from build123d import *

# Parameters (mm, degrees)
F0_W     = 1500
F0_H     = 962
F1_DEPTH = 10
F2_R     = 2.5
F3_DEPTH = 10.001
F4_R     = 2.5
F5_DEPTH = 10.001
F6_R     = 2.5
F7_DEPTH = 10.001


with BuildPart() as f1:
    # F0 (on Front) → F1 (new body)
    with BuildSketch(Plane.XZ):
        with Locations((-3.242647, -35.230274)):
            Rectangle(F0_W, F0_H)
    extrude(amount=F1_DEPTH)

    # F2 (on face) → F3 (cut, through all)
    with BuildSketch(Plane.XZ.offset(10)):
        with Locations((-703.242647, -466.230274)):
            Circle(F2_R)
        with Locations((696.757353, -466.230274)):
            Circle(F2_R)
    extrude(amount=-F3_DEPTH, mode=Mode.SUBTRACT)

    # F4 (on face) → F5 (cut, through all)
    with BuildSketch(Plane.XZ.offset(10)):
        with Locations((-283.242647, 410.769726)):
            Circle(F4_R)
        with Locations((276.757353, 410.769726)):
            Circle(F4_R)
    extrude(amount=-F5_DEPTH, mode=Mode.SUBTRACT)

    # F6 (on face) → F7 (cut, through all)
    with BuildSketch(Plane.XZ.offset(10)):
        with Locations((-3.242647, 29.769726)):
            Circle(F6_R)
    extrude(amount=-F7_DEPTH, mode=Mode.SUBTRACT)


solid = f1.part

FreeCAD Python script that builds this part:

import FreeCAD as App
import Part
import Sketcher
from FreeCAD import Vector


def add_polygon(sketch, points):
    """Adds a closed chain of lines whose ends are joined by coincident constraints."""
    first, n = sketch.GeometryCount, len(points)
    for a, b in zip(points, points[1:] + points[:1]):
        sketch.addGeometry(Part.LineSegment(App.Vector(*a, 0), App.Vector(*b, 0)), False)
    for i in range(n):
        sketch.addConstraint(Sketcher.Constraint("Coincident", first + i, 2, first + (i + 1) % n, 1))

doc = App.newDocument("Part")
body = doc.addObject("PartDesign::Body", "Body")

sketch1 = body.newObject("Sketcher::SketchObject", "Sketch")
sketch1.AttachmentSupport = (doc.getObject("XZ_Plane"), [""])
sketch1.MapMode = "FlatFace"
add_polygon(sketch1, [(-753, 446), (-753, -516), (747, -516), (747, 446)])
sketch1.addConstraint(Sketcher.Constraint("Vertical", 0))
sketch1.addConstraint(Sketcher.Constraint("Horizontal", 1))
sketch1.addConstraint(Sketcher.Constraint("Vertical", 2))
sketch1.addConstraint(Sketcher.Constraint("Horizontal", 3))
sketch1.addConstraint(Sketcher.Constraint("DistanceX", 1, 1, 1, 2, 1500.0))
sketch1.addConstraint(Sketcher.Constraint("DistanceY", 0, 2, 0, 1, 962.0))
sketch1.addConstraint(Sketcher.Constraint("DistanceX", 0, 2, -1, 1, 753.242647))
sketch1.addConstraint(Sketcher.Constraint("DistanceY", 0, 2, -1, 1, 516.230274))
pad1 = body.newObject("PartDesign::Pad", "Pad")
pad1.Profile = sketch1
pad1.Length = 10

sketch2 = body.newObject("Sketcher::SketchObject", "Sketch001")
sketch2.AttachmentSupport = (doc.getObject("XZ_Plane"), [""])
sketch2.MapMode = "FlatFace"
sketch2.AttachmentOffset = App.Placement(Vector(0, 0, 10), App.Rotation())
sketch2.addGeometry(Part.Circle(Vector(-703.2, -466.2, 0), Vector(0, 0, 1), 2.5), False)
sketch2.addGeometry(Part.Circle(Vector(696.8, -466.2, 0), Vector(0, 0, 1), 2.5), False)
sketch2.addConstraint(Sketcher.Constraint("Equal", 0, 1))
sketch2.addConstraint(Sketcher.Constraint("Horizontal", 0, 3, 1, 3))
sketch2.addConstraint(Sketcher.Constraint("Diameter", 0, 5.0))
sketch2.addConstraint(Sketcher.Constraint("DistanceX", 0, 3, 1, 3, 1400.0))
sketch2.addConstraint(Sketcher.Constraint("DistanceX", 0, 3, -1, 1, 703.242647))
sketch2.addConstraint(Sketcher.Constraint("DistanceY", 0, 3, -1, 1, 466.230274))
pocket1 = body.newObject("PartDesign::Pocket", "Pocket")
pocket1.Profile = sketch2
pocket1.Type = "ThroughAll"

sketch3 = body.newObject("Sketcher::SketchObject", "Sketch002")
sketch3.AttachmentSupport = (doc.getObject("XZ_Plane"), [""])
sketch3.MapMode = "FlatFace"
sketch3.AttachmentOffset = App.Placement(Vector(0, 0, 10), App.Rotation())
sketch3.addGeometry(Part.Circle(Vector(-283.2, 410.8, 0), Vector(0, 0, 1), 2.5), False)
sketch3.addGeometry(Part.Circle(Vector(276.8, 410.8, 0), Vector(0, 0, 1), 2.5), False)
sketch3.addConstraint(Sketcher.Constraint("Equal", 0, 1))
sketch3.addConstraint(Sketcher.Constraint("Horizontal", 0, 3, 1, 3))
sketch3.addConstraint(Sketcher.Constraint("Diameter", 0, 5.0))
sketch3.addConstraint(Sketcher.Constraint("DistanceX", 0, 3, 1, 3, 560.0))
sketch3.addConstraint(Sketcher.Constraint("DistanceX", 0, 3, -1, 1, 283.242647))
sketch3.addConstraint(Sketcher.Constraint("DistanceY", -1, 1, 0, 3, 410.769726))
pocket2 = body.newObject("PartDesign::Pocket", "Pocket001")
pocket2.Profile = sketch3
pocket2.Type = "ThroughAll"

sketch4 = body.newObject("Sketcher::SketchObject", "Sketch003")
sketch4.AttachmentSupport = (doc.getObject("XZ_Plane"), [""])
sketch4.MapMode = "FlatFace"
sketch4.AttachmentOffset = App.Placement(Vector(0, 0, 10), App.Rotation())
sketch4.addGeometry(Part.Circle(Vector(-3.2, 29.8, 0), Vector(0, 0, 1), 2.5), False)
sketch4.addConstraint(Sketcher.Constraint("Diameter", 0, 5.0))
sketch4.addConstraint(Sketcher.Constraint("DistanceX", 0, 3, -1, 1, 3.242647))
sketch4.addConstraint(Sketcher.Constraint("DistanceY", -1, 1, 0, 3, 29.769726))
pocket3 = body.newObject("PartDesign::Pocket", "Pocket002")
pocket3.Profile = sketch4
pocket3.Type = "ThroughAll"

doc.recompute()
